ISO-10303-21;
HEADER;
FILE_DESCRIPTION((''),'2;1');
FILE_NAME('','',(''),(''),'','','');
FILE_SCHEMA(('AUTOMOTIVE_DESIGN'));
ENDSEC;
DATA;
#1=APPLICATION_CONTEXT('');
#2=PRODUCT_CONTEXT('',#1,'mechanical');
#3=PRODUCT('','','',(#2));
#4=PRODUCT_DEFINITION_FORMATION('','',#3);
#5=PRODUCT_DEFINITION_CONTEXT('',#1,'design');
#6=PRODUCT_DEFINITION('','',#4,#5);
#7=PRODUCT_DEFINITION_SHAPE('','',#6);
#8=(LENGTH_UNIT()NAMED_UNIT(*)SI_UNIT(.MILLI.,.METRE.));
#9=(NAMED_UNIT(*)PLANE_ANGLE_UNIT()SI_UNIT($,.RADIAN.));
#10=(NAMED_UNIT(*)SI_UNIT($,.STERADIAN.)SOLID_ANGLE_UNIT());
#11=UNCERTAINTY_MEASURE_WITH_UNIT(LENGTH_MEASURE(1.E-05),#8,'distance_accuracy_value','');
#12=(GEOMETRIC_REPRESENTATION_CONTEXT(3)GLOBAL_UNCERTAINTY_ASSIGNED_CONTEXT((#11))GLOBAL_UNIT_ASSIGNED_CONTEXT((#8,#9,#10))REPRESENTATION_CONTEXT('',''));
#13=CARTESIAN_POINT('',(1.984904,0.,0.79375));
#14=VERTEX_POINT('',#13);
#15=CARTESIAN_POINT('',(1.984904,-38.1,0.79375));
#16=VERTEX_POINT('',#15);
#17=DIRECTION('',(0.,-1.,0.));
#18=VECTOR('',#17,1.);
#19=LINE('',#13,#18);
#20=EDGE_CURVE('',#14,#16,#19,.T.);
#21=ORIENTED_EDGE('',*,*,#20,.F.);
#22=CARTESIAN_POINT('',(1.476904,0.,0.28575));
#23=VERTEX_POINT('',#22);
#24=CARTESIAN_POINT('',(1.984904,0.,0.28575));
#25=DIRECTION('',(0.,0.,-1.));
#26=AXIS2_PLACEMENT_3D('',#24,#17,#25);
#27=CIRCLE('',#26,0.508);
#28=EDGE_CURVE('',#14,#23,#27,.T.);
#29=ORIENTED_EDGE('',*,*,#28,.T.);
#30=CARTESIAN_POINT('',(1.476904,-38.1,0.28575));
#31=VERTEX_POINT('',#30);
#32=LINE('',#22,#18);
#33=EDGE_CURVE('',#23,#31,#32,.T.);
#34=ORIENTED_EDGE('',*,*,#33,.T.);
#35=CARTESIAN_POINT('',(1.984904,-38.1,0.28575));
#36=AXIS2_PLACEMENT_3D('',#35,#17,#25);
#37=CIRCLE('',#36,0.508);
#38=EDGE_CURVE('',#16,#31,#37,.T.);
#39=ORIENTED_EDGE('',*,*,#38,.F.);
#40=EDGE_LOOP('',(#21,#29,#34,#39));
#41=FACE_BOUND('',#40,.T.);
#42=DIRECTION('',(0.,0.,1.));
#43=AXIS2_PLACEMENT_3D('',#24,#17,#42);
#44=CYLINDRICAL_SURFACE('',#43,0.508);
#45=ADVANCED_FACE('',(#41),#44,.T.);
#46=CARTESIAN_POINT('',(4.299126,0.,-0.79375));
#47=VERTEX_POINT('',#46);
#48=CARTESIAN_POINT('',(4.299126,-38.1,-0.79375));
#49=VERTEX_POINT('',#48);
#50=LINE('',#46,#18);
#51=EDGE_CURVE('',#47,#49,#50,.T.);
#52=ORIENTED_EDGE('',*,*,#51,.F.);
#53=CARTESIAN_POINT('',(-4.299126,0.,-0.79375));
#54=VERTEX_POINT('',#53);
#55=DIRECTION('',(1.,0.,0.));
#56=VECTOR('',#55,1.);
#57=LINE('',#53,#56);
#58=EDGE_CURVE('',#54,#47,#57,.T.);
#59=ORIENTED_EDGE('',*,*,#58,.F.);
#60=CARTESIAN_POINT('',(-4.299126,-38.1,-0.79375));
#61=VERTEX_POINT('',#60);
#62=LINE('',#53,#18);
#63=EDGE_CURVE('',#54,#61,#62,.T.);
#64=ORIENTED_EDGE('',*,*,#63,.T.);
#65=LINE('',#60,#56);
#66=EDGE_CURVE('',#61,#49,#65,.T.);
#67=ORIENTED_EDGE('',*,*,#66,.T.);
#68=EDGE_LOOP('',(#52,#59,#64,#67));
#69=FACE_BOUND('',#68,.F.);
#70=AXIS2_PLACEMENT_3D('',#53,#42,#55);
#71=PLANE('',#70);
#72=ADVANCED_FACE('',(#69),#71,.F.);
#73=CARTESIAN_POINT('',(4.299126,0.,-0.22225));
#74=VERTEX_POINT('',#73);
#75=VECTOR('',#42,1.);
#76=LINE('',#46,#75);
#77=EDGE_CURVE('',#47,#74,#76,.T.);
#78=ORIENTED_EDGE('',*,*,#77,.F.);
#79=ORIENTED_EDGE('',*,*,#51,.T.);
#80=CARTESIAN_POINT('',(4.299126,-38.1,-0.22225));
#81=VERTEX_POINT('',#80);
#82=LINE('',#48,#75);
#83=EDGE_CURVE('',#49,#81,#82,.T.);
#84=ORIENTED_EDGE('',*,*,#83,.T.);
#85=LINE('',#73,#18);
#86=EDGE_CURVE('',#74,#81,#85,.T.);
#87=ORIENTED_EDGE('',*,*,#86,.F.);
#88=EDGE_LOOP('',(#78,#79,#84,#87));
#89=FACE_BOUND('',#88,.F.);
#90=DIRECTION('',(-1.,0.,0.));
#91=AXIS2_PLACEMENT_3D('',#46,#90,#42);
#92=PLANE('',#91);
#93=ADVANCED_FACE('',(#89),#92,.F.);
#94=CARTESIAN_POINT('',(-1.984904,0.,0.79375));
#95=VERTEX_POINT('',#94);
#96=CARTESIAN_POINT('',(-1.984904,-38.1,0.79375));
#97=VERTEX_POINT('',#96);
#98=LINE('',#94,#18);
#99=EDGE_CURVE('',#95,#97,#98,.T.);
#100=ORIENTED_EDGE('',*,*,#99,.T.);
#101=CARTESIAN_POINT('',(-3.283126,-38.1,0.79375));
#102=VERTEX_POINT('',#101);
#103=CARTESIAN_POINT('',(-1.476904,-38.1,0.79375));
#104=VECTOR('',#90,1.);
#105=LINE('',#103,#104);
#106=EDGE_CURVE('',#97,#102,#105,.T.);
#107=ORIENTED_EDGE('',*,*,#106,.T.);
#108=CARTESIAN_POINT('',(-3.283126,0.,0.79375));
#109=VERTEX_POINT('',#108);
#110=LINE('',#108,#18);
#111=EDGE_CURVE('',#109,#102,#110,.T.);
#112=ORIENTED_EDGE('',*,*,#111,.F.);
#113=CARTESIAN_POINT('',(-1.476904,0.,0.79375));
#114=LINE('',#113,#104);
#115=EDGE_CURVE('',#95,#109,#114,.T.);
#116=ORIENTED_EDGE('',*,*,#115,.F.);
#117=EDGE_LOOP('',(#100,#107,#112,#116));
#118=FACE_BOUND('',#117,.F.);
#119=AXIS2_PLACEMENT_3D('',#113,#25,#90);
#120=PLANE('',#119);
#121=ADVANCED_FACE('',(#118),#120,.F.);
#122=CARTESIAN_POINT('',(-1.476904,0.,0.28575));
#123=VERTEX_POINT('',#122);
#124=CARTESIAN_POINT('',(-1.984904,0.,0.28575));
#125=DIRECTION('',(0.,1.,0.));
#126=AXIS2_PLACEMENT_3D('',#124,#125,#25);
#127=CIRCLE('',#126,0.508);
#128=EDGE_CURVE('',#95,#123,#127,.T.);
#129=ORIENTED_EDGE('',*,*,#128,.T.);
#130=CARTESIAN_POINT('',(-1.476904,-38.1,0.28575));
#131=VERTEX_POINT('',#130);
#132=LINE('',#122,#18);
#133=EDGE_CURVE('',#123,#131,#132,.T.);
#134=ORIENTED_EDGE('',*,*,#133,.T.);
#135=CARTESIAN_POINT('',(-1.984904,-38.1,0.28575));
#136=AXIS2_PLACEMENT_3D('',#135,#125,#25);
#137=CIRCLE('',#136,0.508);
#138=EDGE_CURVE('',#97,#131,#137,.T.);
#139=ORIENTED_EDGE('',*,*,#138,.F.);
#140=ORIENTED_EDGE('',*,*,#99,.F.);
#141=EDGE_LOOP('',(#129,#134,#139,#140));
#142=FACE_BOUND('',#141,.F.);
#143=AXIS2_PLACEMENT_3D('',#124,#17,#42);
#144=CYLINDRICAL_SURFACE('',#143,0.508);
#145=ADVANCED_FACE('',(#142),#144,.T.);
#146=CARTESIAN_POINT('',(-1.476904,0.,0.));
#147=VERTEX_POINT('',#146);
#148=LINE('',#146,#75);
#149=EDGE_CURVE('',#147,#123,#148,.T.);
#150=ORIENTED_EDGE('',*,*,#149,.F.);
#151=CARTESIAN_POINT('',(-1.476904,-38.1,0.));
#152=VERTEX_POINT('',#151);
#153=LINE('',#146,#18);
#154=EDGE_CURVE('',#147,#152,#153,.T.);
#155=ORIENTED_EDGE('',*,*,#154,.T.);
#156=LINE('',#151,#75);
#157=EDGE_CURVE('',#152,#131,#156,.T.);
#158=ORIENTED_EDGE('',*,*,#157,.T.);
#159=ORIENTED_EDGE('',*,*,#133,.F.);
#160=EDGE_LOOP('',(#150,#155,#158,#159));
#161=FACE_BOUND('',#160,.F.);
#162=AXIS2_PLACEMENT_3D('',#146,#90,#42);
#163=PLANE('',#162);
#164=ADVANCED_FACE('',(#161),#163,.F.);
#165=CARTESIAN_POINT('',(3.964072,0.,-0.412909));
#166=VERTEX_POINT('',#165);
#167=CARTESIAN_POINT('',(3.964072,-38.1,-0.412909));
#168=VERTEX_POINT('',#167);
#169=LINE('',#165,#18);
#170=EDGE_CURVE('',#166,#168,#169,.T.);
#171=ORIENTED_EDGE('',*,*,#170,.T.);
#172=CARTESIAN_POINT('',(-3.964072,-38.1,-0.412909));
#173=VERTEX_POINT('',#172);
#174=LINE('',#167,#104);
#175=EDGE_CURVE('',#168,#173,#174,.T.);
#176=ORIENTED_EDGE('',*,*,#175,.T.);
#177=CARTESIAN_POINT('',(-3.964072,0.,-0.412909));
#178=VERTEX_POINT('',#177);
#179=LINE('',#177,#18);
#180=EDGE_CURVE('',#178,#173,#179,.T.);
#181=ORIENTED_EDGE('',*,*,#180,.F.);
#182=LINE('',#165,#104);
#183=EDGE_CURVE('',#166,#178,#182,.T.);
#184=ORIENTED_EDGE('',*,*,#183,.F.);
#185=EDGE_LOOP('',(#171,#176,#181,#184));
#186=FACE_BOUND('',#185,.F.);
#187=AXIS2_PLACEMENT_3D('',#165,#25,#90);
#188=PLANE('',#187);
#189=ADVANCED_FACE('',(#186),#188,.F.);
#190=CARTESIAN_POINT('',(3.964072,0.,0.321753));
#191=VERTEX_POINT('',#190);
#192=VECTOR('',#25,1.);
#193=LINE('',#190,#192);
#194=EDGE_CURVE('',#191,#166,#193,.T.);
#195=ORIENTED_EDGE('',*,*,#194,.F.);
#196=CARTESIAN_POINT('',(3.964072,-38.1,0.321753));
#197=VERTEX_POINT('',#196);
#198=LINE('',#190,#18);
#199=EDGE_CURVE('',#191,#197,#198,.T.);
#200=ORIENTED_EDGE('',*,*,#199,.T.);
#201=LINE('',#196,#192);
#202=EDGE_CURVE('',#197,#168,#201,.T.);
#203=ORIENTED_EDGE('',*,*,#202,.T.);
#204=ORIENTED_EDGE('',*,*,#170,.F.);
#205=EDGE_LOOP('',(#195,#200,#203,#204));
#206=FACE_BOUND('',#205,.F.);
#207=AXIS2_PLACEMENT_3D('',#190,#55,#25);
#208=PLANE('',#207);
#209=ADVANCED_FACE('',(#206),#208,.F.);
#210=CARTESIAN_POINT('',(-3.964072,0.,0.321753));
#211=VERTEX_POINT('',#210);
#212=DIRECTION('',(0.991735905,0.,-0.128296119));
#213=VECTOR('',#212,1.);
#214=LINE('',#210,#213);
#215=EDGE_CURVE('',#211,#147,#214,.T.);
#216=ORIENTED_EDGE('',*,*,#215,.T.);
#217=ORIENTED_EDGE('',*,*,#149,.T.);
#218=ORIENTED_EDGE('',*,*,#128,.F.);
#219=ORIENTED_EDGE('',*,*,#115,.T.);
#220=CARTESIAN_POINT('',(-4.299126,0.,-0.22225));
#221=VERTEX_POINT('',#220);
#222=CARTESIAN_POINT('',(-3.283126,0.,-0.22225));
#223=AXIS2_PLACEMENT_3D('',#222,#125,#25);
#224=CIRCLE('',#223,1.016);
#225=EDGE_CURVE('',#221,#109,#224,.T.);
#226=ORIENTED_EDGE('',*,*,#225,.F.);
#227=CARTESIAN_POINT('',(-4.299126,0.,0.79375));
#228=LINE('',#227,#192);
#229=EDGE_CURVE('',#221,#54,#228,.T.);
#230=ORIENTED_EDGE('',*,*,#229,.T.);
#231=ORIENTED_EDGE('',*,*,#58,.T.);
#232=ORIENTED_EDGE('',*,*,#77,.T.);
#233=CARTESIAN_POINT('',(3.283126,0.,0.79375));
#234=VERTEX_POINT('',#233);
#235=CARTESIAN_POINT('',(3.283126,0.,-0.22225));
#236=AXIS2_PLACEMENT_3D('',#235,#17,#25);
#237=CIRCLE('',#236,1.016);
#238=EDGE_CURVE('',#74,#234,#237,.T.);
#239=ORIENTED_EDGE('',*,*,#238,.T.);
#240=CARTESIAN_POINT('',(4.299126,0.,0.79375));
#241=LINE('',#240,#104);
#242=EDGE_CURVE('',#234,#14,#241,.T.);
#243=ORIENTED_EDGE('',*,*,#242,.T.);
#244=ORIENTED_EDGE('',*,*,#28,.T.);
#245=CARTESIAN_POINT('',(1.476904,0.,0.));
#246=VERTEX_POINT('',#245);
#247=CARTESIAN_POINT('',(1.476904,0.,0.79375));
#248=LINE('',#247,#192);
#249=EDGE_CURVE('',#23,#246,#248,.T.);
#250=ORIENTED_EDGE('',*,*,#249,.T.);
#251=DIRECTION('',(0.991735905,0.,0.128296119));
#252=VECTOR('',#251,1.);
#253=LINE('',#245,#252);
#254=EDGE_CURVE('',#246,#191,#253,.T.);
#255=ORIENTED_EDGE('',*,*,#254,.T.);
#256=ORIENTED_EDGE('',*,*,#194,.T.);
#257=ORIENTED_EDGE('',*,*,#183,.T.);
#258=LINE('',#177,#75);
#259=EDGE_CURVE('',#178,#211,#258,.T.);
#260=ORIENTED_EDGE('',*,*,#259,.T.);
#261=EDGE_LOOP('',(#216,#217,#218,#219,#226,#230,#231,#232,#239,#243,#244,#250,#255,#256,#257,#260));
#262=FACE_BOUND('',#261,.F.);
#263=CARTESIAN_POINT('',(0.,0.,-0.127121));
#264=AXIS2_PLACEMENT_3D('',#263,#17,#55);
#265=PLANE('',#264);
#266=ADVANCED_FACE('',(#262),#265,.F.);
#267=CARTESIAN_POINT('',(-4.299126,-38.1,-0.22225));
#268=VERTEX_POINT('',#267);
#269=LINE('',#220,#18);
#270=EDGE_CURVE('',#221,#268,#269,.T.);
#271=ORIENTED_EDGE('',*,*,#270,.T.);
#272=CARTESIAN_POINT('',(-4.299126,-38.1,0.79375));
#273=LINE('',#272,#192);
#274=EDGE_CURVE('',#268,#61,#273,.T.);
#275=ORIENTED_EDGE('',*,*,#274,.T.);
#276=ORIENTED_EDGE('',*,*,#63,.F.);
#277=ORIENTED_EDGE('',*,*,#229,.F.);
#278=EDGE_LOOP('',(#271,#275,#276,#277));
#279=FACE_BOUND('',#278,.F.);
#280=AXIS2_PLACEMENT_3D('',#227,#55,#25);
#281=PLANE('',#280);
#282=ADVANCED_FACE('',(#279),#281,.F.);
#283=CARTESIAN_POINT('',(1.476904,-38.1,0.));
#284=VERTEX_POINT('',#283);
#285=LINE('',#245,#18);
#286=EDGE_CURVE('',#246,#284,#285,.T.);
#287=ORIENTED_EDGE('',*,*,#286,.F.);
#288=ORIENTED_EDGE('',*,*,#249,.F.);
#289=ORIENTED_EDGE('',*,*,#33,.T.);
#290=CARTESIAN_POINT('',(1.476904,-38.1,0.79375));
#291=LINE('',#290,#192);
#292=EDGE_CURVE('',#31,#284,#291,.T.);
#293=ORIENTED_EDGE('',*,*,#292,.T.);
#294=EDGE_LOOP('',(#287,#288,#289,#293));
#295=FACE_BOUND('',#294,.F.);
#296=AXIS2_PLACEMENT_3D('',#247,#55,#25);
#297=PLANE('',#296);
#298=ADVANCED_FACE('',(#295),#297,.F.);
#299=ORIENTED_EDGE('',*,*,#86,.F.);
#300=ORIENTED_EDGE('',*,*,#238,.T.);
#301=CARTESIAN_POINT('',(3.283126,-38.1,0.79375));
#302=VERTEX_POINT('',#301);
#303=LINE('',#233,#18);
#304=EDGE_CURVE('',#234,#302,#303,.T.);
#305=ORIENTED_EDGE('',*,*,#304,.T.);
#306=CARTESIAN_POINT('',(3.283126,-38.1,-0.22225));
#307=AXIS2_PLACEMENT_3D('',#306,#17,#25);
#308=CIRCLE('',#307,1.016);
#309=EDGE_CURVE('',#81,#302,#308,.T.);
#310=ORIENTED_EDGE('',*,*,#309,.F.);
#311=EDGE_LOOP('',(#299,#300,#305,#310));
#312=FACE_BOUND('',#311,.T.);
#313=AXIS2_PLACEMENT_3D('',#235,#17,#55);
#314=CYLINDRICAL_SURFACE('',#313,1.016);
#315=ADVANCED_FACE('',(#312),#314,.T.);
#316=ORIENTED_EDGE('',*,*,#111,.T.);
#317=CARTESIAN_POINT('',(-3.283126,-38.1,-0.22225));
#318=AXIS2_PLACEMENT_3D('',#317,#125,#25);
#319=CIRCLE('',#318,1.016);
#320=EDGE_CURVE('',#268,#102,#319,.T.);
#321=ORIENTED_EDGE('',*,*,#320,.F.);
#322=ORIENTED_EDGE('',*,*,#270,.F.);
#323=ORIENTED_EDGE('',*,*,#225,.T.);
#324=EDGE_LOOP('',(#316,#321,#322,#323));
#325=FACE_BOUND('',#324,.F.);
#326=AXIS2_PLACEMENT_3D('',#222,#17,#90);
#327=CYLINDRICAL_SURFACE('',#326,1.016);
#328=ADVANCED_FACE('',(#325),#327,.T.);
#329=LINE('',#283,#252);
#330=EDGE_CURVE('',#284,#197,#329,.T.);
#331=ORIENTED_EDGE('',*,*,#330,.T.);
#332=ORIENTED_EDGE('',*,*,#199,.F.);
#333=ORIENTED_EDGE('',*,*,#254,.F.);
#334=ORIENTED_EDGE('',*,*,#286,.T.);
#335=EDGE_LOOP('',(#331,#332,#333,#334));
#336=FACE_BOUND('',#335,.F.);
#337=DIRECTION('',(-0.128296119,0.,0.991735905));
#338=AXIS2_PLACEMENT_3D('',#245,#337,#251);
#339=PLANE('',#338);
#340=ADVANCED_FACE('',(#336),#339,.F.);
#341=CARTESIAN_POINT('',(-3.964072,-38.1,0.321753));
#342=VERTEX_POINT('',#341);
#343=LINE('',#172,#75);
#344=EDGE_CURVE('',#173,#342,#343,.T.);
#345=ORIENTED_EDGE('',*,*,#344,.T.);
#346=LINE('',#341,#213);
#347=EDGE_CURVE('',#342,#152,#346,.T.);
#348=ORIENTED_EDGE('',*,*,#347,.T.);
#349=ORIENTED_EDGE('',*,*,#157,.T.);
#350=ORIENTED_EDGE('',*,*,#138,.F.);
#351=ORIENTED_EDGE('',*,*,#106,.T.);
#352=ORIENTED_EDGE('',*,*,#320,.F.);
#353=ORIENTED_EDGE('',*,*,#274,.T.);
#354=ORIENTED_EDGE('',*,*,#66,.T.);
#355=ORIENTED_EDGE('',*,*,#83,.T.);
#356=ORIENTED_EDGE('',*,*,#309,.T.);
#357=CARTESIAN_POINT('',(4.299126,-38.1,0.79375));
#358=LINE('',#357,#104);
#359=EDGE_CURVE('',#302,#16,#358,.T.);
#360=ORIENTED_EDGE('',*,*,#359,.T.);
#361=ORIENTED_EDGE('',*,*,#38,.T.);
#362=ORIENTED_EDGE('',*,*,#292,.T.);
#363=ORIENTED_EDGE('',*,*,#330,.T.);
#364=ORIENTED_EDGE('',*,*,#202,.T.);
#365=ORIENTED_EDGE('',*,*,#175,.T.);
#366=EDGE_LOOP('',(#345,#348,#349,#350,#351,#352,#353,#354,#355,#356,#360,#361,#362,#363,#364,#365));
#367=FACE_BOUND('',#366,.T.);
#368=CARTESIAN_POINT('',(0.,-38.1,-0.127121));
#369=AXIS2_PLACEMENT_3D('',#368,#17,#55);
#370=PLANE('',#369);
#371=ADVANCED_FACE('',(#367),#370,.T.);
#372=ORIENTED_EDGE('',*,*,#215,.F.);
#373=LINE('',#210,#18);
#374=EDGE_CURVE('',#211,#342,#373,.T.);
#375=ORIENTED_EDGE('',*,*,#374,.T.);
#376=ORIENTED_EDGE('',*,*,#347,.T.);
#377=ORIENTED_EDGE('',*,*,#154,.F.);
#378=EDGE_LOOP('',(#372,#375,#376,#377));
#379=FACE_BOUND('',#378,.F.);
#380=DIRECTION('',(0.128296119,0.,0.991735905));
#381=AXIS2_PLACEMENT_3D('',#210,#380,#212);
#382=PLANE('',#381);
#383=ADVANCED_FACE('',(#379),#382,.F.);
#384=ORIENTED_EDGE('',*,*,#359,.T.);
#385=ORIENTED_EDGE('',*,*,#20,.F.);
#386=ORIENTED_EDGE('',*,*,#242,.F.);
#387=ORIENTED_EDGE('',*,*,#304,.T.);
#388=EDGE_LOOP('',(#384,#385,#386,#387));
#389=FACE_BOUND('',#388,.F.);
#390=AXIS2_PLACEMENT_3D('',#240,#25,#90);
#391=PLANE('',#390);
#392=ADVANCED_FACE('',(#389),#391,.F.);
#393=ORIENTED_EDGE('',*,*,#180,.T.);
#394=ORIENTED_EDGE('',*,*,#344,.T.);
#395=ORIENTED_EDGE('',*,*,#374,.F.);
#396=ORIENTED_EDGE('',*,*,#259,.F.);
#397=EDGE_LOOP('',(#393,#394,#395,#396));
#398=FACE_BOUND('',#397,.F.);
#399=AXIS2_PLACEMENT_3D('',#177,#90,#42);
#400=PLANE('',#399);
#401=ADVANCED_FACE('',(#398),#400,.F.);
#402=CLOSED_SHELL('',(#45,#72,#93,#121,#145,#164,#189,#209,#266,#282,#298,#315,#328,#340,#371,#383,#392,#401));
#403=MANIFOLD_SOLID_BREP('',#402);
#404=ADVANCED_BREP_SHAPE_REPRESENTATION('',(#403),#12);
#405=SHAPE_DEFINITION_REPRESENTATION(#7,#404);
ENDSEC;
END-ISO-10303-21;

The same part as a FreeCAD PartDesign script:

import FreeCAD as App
import Part
import Sketcher

V = App.Vector
Q = App.Units.Quantity


def edges_at(feature, points):
    """Names of the edges that pass closest to the given points."""
    edges = feature.Shape.Edges
    near = lambda p: min(range(len(edges)), key=lambda i: edges[i].distToShape(Part.Vertex(*p))[0])
    return sorted({f"Edge{near(p) + 1}" for p in points})


def add_polygon(sketch, points):
    """Adds a closed chain of lines whose ends are joined by coincident constraints."""
    first, n = sketch.GeometryCount, len(points)
    for a, b in zip(points, points[1:] + points[:1]):
        sketch.addGeometry(Part.LineSegment(App.Vector(*a, 0), App.Vector(*b, 0)), False)
    for i in range(n):
        sketch.addConstraint(Sketcher.Constraint("Coincident", first + i, 2, first + (i + 1) % n, 1))

doc = App.newDocument("Part")
body = doc.addObject("PartDesign::Body", "Body")

# Sketch on XZ plane
sketch1 = body.newObject("Sketcher::SketchObject", "Sketch")
sketch1.AttachmentSupport = (doc.getObject("XZ_Plane"), [""])
sketch1.MapMode = "FlatFace"
add_polygon(sketch1, [(-4.299126, 0.79375), (-4.299126, -0.79375), (4.299126, -0.79375), (4.299126, 0.79375), (1.476904, 0.79375), (1.476904, 0), (3.964072, 0.321753), (3.964072, -0.412909), (-3.964072, -0.412909), (-3.964072, 0.321753), (-1.476904, 0), (-1.476904, 0.79375)])  # lines 0-11
sketch1.addConstraint([
    Sketcher.Constraint("Vertical", 0),
    Sketcher.Constraint("Horizontal", 1),
    Sketcher.Constraint("Vertical", 2),
    Sketcher.Constraint("Horizontal", 3),
    Sketcher.Constraint("Vertical", 4),
    Sketcher.Constraint("Vertical", 6),
    Sketcher.Constraint("Horizontal", 7),
    Sketcher.Constraint("Vertical", 8),
    Sketcher.Constraint("Vertical", 10),
    Sketcher.Constraint("Horizontal", 11),
    Sketcher.Constraint("Symmetric", 0, 2, 2, 2, -1, 1),
    Sketcher.Constraint("Symmetric", 4, 2, 9, 2, -1, 1),
    Sketcher.Constraint("Symmetric", 5, 2, 8, 2, -2),
    Sketcher.Constraint("PointOnObject", 4, 2, -1),
    Sketcher.Constraint("Horizontal", 3, 2, 10, 2),
    Sketcher.Constraint("DistanceY", 0, 2, 0, 1, Q("0.0625 in")),
    Sketcher.Constraint("DistanceX", 3, 2, 3, 1, Q("2.822222 mm")),
    Sketcher.Constraint("DistanceX", 1, 1, 1, 2, Q("8.598252 mm")),
    Sketcher.Constraint("DistanceX", 7, 2, 7, 1, Q("7.928144 mm")),
    Sketcher.Constraint("DistanceY", 6, 2, 6, 1, Q("0.734662 mm")),
    Sketcher.Constraint("DistanceY", 6, 2, -1, 1, Q("0.412909 mm")),
])
pad1 = body.newObject("PartDesign::Pad", "Pad")
pad1.Profile = sketch1
pad1.Length = Q("1.5 in")
doc.recompute()

fillet = body.newObject("PartDesign::Fillet", "Fillet")
fillet.Base = (pad1, edges_at(pad1, [(-4.299, -19.05, 0.794)]))
fillet.Radius = Q("0.04 in")
doc.recompute()

fillet2 = body.newObject("PartDesign::Fillet", "Fillet001")
fillet2.Base = (fillet, edges_at(fillet, [(4.299, -19.05, 0.794)]))
fillet2.Radius = Q("0.04 in")
doc.recompute()

fillet3 = body.newObject("PartDesign::Fillet", "Fillet002")
fillet3.Base = (fillet2, edges_at(fillet2, [(-1.477, -19.05, 0.794)]))
fillet3.Radius = Q("0.02 in")
doc.recompute()

fillet4 = body.newObject("PartDesign::Fillet", "Fillet003")
fillet4.Base = (fillet3, edges_at(fillet3, [(1.477, -19.05, 0.794)]))
fillet4.Radius = Q("0.02 in")

doc.recompute()
